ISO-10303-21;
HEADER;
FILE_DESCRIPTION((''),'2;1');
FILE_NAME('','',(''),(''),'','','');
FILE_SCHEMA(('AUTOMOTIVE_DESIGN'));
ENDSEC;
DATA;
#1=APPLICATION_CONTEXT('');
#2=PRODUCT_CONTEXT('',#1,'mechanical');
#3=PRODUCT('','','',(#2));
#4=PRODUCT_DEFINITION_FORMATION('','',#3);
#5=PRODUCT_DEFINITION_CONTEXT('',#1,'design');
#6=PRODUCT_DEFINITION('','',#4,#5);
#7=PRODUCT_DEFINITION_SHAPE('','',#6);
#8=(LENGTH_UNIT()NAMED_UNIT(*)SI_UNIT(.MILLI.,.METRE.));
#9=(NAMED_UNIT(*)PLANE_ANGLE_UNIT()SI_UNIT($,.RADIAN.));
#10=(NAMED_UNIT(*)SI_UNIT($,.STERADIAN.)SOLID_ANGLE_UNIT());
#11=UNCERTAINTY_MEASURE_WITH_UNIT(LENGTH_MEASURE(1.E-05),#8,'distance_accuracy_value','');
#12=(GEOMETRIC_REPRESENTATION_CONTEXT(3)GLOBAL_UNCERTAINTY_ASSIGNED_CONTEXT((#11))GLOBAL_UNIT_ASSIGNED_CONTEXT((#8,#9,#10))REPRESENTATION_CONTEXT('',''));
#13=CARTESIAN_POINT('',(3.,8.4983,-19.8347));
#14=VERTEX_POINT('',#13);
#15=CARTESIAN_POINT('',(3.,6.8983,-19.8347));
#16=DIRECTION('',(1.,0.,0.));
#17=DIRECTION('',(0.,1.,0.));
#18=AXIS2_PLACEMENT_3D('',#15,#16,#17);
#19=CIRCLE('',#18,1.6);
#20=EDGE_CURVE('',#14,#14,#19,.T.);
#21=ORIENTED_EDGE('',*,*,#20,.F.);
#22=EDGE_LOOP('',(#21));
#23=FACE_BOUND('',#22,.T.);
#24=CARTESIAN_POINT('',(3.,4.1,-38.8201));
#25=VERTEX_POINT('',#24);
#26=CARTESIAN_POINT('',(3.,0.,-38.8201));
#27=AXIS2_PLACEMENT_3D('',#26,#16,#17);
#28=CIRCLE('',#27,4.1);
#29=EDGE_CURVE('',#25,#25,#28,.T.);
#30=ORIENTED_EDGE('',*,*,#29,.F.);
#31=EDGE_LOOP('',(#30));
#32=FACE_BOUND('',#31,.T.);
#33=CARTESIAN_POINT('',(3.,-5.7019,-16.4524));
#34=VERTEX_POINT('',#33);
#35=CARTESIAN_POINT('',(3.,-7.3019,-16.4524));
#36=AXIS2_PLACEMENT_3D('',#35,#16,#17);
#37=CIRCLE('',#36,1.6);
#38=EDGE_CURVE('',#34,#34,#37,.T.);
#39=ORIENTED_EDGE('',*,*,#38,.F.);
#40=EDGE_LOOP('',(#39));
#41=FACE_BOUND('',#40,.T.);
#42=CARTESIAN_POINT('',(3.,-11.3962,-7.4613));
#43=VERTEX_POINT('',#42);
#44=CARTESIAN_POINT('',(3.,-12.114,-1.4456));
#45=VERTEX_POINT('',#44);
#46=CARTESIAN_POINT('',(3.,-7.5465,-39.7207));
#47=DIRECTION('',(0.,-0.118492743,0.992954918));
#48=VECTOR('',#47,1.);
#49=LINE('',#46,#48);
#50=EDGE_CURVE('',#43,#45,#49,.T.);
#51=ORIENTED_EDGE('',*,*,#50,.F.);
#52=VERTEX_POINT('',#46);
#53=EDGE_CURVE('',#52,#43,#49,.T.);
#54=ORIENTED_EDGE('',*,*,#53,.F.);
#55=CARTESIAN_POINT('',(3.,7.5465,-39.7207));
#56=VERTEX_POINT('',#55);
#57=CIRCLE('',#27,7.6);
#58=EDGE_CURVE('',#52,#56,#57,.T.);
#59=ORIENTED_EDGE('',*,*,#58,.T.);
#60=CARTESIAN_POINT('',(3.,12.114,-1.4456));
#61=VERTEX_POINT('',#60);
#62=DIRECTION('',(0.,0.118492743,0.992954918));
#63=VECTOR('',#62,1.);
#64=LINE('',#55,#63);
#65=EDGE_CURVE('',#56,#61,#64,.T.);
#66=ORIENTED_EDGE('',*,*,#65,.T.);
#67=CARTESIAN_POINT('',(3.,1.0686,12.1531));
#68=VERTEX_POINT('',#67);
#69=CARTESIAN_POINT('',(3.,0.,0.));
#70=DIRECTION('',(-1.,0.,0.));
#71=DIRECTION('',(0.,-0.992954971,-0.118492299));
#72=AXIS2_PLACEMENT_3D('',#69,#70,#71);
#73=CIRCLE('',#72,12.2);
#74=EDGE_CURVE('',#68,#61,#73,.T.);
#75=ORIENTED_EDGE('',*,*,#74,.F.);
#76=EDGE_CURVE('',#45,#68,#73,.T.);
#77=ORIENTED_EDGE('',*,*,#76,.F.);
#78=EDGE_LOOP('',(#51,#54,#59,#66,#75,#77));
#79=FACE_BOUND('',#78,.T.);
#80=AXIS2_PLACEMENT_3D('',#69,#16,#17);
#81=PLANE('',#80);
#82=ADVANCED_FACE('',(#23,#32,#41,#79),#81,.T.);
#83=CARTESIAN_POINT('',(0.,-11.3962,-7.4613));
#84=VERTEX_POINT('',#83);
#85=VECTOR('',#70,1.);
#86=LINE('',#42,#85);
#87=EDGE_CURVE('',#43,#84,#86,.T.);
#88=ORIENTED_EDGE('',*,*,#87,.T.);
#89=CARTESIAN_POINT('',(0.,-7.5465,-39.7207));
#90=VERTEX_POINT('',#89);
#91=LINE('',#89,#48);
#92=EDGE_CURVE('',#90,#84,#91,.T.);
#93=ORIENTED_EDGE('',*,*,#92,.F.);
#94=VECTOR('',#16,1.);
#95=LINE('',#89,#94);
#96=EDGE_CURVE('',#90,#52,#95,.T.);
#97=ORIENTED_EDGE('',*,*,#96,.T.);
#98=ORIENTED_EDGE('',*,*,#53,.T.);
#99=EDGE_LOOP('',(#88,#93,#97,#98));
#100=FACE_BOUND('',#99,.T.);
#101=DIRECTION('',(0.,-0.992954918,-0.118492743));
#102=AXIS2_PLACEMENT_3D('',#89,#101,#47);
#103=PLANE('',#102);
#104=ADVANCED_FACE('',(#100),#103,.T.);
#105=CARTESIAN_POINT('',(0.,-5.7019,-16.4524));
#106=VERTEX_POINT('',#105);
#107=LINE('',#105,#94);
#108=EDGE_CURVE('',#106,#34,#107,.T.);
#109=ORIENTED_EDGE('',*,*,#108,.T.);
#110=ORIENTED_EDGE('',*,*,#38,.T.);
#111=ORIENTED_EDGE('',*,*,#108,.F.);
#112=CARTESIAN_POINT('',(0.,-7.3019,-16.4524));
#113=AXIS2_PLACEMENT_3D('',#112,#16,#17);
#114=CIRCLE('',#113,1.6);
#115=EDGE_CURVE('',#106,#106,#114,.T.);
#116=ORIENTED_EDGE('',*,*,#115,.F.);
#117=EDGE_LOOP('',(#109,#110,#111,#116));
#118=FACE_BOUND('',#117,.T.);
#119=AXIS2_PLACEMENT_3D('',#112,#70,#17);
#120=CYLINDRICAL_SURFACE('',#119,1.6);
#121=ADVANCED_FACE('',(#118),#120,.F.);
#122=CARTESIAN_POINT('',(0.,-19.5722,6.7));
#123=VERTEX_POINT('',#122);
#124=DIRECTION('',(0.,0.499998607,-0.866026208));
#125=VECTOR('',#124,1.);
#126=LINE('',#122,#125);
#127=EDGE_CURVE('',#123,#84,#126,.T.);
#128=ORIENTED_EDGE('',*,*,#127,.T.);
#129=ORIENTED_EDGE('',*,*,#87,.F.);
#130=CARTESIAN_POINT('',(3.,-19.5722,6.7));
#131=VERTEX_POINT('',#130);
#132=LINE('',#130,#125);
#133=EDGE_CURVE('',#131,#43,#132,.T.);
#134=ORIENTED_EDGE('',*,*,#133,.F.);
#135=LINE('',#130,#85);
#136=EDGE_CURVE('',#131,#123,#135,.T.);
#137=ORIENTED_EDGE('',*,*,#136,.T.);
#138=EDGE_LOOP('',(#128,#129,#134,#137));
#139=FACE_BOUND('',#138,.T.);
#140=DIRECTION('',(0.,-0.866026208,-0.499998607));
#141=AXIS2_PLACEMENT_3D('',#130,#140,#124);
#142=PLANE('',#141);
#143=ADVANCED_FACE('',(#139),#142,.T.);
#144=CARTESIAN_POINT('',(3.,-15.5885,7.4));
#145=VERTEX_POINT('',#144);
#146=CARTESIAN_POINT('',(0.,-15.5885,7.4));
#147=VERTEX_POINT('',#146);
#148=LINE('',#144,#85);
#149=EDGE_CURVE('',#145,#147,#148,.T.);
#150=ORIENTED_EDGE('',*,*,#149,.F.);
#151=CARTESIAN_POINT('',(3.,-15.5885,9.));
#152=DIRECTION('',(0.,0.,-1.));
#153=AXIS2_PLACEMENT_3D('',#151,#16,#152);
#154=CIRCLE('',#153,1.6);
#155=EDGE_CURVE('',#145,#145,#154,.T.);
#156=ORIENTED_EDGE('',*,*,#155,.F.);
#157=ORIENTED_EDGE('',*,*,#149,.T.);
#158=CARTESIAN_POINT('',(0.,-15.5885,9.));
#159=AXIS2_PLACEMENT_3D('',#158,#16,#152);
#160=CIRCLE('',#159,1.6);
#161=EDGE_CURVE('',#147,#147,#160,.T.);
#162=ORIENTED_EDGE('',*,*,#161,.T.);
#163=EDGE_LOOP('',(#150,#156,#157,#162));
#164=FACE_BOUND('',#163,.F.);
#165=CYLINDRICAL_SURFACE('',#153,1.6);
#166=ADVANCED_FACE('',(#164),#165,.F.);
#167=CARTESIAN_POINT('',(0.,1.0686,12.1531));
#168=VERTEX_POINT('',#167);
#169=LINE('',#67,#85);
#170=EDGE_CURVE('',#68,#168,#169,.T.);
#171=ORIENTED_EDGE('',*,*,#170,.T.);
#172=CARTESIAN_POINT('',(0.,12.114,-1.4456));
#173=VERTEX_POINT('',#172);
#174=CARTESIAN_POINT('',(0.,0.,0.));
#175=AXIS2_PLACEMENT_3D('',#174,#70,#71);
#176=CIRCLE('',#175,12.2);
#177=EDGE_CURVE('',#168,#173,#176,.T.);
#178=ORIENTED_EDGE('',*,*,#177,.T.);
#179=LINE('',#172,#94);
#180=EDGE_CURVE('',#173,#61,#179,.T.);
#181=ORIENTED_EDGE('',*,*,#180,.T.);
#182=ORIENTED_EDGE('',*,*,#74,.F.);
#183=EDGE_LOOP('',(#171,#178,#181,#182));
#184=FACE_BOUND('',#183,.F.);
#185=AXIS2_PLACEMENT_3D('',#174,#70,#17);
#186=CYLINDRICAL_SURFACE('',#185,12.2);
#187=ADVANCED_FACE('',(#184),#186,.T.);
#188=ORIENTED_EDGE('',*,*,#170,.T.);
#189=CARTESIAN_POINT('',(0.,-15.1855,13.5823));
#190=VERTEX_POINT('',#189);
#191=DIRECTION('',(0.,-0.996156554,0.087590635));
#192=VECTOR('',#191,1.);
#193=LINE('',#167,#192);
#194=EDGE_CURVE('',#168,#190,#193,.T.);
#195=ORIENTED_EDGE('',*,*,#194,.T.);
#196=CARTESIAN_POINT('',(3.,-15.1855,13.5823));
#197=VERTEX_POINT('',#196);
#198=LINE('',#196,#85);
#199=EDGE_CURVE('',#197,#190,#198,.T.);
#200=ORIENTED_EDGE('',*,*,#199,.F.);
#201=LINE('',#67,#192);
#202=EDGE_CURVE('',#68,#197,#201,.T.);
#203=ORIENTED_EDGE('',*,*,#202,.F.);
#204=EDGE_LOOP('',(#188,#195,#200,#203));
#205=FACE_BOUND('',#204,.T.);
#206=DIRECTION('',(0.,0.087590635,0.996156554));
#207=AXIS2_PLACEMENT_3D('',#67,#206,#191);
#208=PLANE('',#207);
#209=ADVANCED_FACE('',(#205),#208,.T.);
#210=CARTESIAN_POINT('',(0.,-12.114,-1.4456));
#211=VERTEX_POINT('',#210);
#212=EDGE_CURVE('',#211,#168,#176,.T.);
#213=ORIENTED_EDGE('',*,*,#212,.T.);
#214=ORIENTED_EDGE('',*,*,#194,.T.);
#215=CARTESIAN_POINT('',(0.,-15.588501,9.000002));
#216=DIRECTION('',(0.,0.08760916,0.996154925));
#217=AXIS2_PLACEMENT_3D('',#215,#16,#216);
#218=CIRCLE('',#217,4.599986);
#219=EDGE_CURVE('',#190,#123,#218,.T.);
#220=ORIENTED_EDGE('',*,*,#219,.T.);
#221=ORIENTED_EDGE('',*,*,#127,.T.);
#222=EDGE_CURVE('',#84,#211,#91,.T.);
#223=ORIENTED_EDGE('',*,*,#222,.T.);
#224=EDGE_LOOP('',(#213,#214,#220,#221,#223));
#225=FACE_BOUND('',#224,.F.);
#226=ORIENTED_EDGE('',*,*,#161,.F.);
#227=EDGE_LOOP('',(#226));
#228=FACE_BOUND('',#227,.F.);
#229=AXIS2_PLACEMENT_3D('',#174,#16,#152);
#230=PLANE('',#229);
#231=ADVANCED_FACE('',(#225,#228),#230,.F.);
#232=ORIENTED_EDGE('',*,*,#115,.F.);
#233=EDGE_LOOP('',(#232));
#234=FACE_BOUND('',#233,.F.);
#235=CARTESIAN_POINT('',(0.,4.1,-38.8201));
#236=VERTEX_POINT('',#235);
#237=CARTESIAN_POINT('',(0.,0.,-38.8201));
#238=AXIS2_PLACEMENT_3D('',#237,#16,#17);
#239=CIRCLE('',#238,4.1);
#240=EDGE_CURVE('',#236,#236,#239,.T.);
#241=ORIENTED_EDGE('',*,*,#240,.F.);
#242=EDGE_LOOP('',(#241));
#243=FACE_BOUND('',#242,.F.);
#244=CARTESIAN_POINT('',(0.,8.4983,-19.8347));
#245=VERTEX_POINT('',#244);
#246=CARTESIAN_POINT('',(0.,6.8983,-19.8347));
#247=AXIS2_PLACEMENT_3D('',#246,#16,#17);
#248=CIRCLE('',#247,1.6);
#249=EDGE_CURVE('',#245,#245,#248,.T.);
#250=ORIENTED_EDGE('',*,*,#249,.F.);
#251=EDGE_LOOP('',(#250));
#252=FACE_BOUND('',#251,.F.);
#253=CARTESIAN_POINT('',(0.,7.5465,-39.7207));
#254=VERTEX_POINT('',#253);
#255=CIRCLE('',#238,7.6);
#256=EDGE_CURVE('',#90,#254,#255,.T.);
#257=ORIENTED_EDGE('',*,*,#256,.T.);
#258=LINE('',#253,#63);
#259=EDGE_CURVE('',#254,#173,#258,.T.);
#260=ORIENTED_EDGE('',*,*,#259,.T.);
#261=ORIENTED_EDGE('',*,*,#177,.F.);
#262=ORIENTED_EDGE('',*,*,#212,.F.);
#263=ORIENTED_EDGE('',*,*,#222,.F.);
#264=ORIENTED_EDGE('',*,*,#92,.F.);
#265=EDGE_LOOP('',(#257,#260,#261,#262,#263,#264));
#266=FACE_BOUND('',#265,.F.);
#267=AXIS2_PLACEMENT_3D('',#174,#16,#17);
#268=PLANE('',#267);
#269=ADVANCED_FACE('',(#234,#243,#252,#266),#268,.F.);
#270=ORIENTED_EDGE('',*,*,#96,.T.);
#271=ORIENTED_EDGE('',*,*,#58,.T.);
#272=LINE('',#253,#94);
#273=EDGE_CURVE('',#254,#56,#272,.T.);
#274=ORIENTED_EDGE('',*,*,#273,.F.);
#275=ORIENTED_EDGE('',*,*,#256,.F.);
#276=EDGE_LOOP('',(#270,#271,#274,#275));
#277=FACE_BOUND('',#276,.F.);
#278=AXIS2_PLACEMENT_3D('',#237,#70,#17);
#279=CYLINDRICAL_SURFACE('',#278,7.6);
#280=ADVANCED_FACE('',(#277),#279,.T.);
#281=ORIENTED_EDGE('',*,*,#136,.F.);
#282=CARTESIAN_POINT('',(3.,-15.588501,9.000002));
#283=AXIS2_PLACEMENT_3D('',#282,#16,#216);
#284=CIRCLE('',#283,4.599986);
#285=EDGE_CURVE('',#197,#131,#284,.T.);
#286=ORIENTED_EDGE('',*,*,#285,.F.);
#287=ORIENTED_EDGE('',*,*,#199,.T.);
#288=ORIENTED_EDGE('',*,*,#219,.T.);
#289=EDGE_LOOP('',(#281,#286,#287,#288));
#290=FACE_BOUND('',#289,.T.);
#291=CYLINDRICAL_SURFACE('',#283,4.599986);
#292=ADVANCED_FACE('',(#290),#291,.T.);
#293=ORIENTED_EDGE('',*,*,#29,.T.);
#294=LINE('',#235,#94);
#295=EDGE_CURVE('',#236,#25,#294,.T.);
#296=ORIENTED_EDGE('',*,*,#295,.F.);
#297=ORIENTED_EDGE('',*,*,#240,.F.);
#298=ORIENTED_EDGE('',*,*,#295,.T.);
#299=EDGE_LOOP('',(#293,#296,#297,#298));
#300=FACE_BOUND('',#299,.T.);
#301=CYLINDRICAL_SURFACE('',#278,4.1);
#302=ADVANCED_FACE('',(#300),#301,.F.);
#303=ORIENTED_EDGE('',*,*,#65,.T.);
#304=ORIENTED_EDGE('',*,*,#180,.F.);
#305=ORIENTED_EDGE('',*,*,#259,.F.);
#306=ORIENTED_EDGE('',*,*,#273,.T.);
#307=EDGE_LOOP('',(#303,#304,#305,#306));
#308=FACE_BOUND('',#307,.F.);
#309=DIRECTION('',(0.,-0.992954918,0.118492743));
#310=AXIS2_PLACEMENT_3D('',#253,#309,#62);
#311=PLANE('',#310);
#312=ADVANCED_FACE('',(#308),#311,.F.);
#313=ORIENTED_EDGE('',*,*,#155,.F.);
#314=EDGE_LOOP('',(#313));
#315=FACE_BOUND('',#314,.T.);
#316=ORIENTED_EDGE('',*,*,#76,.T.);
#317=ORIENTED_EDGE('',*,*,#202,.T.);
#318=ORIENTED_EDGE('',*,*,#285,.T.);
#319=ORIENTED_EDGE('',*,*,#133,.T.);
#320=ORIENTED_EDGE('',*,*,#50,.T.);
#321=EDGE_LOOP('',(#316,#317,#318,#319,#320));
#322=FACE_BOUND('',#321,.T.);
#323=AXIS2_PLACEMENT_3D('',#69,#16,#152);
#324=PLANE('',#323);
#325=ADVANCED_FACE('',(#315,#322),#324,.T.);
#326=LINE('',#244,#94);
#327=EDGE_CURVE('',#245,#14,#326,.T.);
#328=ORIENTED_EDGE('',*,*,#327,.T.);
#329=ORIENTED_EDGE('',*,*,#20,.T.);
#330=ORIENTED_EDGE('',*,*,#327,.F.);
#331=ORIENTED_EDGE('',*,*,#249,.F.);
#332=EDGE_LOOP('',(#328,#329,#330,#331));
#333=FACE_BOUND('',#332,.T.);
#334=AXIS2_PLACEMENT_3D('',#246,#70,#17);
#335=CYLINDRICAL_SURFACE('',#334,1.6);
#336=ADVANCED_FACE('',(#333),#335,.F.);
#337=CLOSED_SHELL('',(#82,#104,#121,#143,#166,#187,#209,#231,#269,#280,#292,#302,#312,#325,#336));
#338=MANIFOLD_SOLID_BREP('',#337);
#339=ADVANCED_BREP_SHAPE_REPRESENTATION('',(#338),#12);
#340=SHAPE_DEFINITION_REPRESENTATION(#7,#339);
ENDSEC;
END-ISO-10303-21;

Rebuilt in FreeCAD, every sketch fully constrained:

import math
import FreeCAD as App
import Part
import Sketcher
from FreeCAD import Vector
Q = App.Units.Quantity

doc = App.newDocument("Part")
body = doc.addObject("PartDesign::Body", "Body")

# Sketch on YZ plane
sketch1 = doc.addObject("Sketcher::SketchObject", "Sketch")
body.addObject(sketch1)
sketch1.AttachmentSupport = (doc.YZ_Plane, [""])
sketch1.MapMode = "FlatFace"
sketch1.addGeometry([
    Part.LineSegment(Vector(-12.1, -1.4, 0), Vector(-7.5, -39.7, 0)),  # 0
    Part.ArcOfCircle(Part.Circle(Vector(0, -38.8, 0), Vector(0, 0, 1), 7.6), math.radians(-173), math.radians(-7)),  # 1
    Part.LineSegment(Vector(7.5, -39.7, 0), Vector(12.1, -1.4, 0)),  # 2
    Part.ArcOfCircle(Part.Circle(Vector(0, 0, 0), Vector(0, 0, 1), 12.2), math.radians(-7), math.radians(187)),  # 3
    Part.Circle(Vector(6.9, -19.8, 0), Vector(0, 0, 1), 1.6),  # 4
    Part.Circle(Vector(-7.3, -16.5, 0), Vector(0, 0, 1), 1.6),  # 5
    Part.Circle(Vector(0, -38.8, 0), Vector(0, 0, 1), 4.1),  # 6
], False)
sketch1.addConstraint([
    Sketcher.Constraint("Tangent", 0, 2, 1, 1),
    Sketcher.Constraint("Tangent", 1, 2, 2, 1),
    Sketcher.Constraint("Tangent", 2, 2, 3, 1),
    Sketcher.Constraint("Tangent", 3, 2, 0, 1),
    Sketcher.Constraint("Coincident", 3, 3, -1, 1),
    Sketcher.Constraint("Coincident", 6, 3, 1, 3),
    Sketcher.Constraint("Equal", 4, 5),
    Sketcher.Constraint("PointOnObject", 1, 3, -2),
    Sketcher.Constraint("Diameter", 4, 3.2),
    Sketcher.Constraint("Diameter", 6, 8.2),
    Sketcher.Constraint("Radius", 3, 12.2),
    Sketcher.Constraint("Radius", 1, 7.6),
    Sketcher.Constraint("DistanceY", 1, 3, -1, 1, 38.82),
    Sketcher.Constraint("DistanceX", 5, 3, -1, 1, 7.302),
    Sketcher.Constraint("DistanceY", 0, 2, 4, 3, 19.886),
    Sketcher.Constraint("DistanceX", -1, 1, 4, 3, 6.8983),
    Sketcher.Constraint("DistanceY", 5, 3, -1, 1, 16.4524),
])
pad1 = doc.addObject("PartDesign::Pad", "Pad")
body.addObject(pad1)
pad1.Profile = sketch1
pad1.Length = 3

# Sketch on YZ plane
sketch2 = doc.addObject("Sketcher::SketchObject", "Sketch001")
body.addObject(sketch2)
sketch2.AttachmentSupport = (doc.YZ_Plane, [""])
sketch2.MapMode = "FlatFace"
sketch2.AttachmentOffset = App.Placement(Vector(0, 0, 3), App.Rotation())
sketch2.addGeometry([
    Part.ArcOfCircle(Part.Circle(Vector(0, 0, 0), Vector(0, 0, 1), 12.2), math.radians(85), math.radians(187)),  # 0
    Part.LineSegment(Vector(1.1, 12.2, 0), Vector(-15.2, 13.6, 0)),  # 1
    Part.ArcOfCircle(Part.Circle(Vector(-15.6, 9, 0), Vector(0, 0, 1), 4.6), math.radians(85), math.radians(210)),  # 2
    Part.LineSegment(Vector(-19.6, 6.7, 0), Vector(-11.4, -7.5, 0)),  # 3
    Part.LineSegment(Vector(-11.4, -7.5, 0), Vector(-12.1, -1.4, 0)),  # 4
    Part.Circle(Vector(-15.6, 9, 0), Vector(0, 0, 1), 1.6),  # 5
], False)
sketch2.addConstraint([
    Sketcher.Constraint("Tangent", 0, 1, 1, 1),
    Sketcher.Constraint("Tangent", 1, 2, 2, 1),
    Sketcher.Constraint("Tangent", 2, 2, 3, 1),
    Sketcher.Constraint("Coincident", 3, 2, 4, 1),
    Sketcher.Constraint("Tangent", 4, 2, 0, 2),
    Sketcher.Constraint("Coincident", 0, 3, -1, 1),
    Sketcher.Constraint("Coincident", 5, 3, 2, 3),
    Sketcher.Constraint("Diameter", 5, 3.2),
    Sketcher.Constraint("Radius", 0, 12.2),
    Sketcher.Constraint("Radius", 2, 4.6),
    Sketcher.Constraint("Angle", 3, Q("-60 deg")),
    Sketcher.Constraint("DistanceY", -1, 1, 2, 3, 9.0),
    Sketcher.Constraint("Distance", 3, 16.352),
    Sketcher.Constraint("DistanceX", 4, 2, -1, 1, 12.114),
])
pad2 = doc.addObject("PartDesign::Pad", "Pad001")
body.addObject(pad2)
pad2.Profile = sketch2
pad2.Length = 3
pad2.Reversed = True

doc.recompute()
